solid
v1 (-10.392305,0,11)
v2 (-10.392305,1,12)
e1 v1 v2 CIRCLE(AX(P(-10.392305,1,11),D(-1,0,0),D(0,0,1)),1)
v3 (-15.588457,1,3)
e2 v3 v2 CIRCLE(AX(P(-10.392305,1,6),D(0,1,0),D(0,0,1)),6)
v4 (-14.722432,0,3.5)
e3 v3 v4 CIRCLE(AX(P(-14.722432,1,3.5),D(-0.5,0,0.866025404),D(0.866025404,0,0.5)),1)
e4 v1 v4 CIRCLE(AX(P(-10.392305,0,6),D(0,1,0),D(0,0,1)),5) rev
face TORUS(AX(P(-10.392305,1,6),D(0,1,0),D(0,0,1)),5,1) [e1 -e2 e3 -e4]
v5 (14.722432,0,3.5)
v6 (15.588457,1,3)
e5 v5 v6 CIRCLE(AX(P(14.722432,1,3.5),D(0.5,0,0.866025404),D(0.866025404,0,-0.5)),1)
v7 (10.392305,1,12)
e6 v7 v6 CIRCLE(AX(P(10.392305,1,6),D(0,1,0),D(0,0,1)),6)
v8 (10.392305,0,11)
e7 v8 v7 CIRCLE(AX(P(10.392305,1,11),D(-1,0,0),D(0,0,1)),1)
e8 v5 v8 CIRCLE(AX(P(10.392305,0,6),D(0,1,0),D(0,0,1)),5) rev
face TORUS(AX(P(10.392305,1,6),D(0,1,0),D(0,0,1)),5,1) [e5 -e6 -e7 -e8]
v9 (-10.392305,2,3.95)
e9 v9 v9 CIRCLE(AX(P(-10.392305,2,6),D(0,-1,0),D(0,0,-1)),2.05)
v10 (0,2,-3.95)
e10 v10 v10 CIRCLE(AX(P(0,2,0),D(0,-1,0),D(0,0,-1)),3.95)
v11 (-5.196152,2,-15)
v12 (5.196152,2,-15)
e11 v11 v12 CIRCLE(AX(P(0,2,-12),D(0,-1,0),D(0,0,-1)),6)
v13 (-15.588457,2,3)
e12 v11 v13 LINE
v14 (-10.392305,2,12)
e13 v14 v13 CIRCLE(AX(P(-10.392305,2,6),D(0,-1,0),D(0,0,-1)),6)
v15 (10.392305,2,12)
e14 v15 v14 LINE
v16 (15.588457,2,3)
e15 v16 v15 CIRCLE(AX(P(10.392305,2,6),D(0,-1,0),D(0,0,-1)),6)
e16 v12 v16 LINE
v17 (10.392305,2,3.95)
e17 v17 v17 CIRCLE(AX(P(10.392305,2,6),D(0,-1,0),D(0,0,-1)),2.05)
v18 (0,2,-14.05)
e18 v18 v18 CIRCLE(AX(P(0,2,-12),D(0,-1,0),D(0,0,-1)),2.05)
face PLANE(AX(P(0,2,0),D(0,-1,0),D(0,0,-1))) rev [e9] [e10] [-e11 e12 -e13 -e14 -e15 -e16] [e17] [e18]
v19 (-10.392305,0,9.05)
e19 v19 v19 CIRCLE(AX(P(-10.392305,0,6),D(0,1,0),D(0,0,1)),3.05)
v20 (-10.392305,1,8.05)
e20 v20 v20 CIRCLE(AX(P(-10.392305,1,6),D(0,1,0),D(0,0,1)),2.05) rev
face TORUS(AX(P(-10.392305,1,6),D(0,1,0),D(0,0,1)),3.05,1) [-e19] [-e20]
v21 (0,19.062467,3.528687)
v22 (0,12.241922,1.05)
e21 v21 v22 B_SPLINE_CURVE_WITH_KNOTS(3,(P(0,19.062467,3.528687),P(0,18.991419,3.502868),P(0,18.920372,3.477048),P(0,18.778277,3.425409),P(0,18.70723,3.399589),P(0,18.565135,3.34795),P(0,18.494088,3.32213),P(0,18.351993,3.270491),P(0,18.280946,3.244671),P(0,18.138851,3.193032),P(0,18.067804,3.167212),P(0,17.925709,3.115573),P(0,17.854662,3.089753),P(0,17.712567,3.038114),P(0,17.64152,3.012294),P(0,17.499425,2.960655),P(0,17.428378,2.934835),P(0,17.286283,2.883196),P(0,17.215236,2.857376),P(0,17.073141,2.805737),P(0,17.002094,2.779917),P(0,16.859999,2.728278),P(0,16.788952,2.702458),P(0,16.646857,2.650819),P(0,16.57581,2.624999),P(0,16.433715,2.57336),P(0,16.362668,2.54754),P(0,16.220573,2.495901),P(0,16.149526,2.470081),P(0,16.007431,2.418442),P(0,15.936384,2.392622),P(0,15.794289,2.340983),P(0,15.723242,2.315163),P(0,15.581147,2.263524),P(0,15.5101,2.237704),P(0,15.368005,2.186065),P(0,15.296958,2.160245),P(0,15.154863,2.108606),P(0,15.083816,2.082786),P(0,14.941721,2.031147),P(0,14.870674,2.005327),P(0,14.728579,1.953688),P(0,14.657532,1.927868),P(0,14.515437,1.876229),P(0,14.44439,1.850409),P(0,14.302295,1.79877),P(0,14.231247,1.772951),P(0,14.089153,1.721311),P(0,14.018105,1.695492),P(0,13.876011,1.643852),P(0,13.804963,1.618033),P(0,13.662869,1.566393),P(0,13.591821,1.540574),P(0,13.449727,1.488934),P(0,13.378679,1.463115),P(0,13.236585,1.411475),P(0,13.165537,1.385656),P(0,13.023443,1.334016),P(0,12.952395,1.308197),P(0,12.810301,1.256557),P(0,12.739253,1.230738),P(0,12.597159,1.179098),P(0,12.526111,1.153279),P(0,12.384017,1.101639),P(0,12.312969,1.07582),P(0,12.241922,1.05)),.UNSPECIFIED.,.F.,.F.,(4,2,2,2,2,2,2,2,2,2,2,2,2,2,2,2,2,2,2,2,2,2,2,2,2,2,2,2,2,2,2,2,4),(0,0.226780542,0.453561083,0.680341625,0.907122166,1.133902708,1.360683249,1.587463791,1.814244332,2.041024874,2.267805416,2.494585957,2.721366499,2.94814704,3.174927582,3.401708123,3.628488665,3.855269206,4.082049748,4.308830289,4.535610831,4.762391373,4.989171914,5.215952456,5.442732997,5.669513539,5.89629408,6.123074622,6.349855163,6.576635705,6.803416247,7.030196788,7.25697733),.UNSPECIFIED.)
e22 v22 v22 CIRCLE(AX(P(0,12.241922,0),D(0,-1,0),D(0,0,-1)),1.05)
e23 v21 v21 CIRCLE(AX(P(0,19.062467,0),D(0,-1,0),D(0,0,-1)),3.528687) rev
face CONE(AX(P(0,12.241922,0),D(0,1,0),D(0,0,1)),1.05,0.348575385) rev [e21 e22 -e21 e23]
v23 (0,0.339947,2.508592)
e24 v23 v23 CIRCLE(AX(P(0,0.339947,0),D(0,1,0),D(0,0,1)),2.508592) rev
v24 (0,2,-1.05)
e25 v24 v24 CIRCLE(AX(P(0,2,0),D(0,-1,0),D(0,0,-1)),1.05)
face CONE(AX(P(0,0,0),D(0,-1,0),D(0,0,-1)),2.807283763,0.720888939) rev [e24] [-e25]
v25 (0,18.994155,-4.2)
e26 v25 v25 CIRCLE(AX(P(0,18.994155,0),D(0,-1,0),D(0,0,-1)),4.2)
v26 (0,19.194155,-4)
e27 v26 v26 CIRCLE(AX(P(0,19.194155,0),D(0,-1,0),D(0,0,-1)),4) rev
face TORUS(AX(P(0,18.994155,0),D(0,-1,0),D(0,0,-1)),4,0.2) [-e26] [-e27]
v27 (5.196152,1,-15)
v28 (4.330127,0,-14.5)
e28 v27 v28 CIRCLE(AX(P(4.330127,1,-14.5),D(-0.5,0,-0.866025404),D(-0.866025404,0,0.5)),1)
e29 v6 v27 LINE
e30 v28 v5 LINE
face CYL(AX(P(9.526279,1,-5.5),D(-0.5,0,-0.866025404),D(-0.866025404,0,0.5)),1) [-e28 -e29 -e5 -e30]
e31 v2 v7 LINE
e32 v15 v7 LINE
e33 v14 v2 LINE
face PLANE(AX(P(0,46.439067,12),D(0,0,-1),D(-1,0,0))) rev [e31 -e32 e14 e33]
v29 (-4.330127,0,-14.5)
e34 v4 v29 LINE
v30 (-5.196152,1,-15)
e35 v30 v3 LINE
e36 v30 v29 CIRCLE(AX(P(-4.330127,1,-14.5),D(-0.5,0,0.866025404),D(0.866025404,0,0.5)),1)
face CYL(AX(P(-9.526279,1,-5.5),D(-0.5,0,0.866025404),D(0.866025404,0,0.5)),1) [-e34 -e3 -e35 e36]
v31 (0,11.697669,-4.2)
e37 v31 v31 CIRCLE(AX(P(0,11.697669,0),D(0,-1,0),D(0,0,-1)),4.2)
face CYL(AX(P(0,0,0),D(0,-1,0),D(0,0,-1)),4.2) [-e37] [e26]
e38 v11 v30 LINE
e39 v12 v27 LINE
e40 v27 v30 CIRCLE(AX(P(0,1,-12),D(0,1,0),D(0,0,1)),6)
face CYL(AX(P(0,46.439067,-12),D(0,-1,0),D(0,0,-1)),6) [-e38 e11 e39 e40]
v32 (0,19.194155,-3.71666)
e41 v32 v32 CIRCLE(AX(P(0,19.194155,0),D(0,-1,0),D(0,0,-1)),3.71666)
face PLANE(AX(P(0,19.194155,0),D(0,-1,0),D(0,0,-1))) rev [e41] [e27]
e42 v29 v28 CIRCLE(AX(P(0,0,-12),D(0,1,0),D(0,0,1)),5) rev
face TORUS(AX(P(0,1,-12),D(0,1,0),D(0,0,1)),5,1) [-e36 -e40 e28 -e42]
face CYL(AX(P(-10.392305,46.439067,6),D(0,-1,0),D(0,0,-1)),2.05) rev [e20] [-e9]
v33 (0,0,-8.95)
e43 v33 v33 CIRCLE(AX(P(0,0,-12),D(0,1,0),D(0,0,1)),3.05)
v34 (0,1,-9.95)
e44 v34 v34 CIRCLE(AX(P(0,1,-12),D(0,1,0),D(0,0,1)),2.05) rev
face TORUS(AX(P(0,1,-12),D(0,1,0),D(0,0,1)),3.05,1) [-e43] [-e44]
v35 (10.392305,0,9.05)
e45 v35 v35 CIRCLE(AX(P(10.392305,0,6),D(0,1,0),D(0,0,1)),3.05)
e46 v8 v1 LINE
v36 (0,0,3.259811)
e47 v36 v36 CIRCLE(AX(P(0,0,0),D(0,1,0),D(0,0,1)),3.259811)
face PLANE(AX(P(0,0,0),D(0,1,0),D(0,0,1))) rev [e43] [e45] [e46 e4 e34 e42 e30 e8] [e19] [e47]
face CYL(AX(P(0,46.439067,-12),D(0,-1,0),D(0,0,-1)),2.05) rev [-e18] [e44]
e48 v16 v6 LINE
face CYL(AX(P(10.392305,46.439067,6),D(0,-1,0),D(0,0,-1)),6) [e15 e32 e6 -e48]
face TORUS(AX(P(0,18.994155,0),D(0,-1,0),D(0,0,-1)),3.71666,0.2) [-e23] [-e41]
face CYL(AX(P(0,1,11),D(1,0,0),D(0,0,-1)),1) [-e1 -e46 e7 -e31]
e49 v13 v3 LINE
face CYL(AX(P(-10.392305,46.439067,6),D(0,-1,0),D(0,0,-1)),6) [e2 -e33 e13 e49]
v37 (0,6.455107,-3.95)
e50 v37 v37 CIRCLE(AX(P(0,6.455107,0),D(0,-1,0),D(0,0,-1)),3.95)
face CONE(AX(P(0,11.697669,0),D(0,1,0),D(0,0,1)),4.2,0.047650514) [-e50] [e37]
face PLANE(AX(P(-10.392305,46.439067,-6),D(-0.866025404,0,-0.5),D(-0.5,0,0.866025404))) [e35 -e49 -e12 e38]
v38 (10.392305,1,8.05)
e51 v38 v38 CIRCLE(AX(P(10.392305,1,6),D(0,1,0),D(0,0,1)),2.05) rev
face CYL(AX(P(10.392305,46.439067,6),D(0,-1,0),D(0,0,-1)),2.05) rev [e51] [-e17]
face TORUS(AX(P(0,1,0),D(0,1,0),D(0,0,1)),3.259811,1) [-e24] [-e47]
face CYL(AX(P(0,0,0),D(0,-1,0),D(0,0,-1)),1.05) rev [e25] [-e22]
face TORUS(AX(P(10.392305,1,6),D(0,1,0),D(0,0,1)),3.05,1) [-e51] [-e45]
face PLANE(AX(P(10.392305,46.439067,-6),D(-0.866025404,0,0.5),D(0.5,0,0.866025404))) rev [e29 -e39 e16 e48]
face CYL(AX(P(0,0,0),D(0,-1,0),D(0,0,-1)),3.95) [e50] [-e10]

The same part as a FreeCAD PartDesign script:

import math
import FreeCAD as App
import Part
import Sketcher
from FreeCAD import Vector
Q = App.Units.Quantity


def edges_at(feature, points):
    """Names of the edges that pass closest to the given points."""
    edges = feature.Shape.Edges
    near = lambda p: min(range(len(edges)), key=lambda i: edges[i].distToShape(Part.Vertex(*p))[0])
    return sorted({f"Edge{near(p) + 1}" for p in points})


def add_polygon(sketch, points):
    """Adds a closed chain of lines whose ends are joined by coincident constraints."""
    first, n = sketch.GeometryCount, len(points)
    for a, b in zip(points, points[1:] + points[:1]):
        sketch.addGeometry(Part.LineSegment(App.Vector(*a, 0), App.Vector(*b, 0)), False)
    for i in range(n):
        sketch.addConstraint(Sketcher.Constraint("Coincident", first + i, 2, first + (i + 1) % n, 1))

doc = App.newDocument("Part")
body = doc.addObject("PartDesign::Body", "Body")

sketch1 = doc.addObject("Sketcher::SketchObject", "Sketch")
body.addObject(sketch1)
sketch1.AttachmentSupport = (doc.XY_Plane, [""])
sketch1.MapMode = "FlatFace"
add_polygon(sketch1, [(-1.1, 12.2), (-3.6, 19.2), (-4.2, 19.2), (-4.2, 11.7), (-4, 6.5), (-4, 2), (-8, 2), (-8, 0), (-2.8, 0), (-1.1, 2)])
sketch1.addConstraint(Sketcher.Constraint("Horizontal", 1))
sketch1.addConstraint(Sketcher.Constraint("Vertical", 2))
sketch1.addConstraint(Sketcher.Constraint("Vertical", 4))
sketch1.addConstraint(Sketcher.Constraint("Horizontal", 5))
sketch1.addConstraint(Sketcher.Constraint("Vertical", 6))
sketch1.addConstraint(Sketcher.Constraint("Horizontal", 7))
sketch1.addConstraint(Sketcher.Constraint("Vertical", 9))
sketch1.addConstraint(Sketcher.Constraint("PointOnObject", 6, 2, -1))
sketch1.addConstraint(Sketcher.Constraint("Horizontal", 5, 2, 8, 2))
sketch1.addConstraint(Sketcher.Constraint("DistanceY", 6, 2, 6, 1, 2.0))
sketch1.addConstraint(Sketcher.Constraint("DistanceX", 5, 2, -1, 1, 8.0))
sketch1.addConstraint(Sketcher.Constraint("DistanceX", 5, 2, 5, 1, 4.05))
sketch1.addConstraint(Sketcher.Constraint("DistanceX", 1, 2, -1, 1, 4.2))
sketch1.addConstraint(Sketcher.Constraint("DistanceX", 4, 2, 8, 2, 2.9))
sketch1.addConstraint(Sketcher.Constraint("DistanceY", 9, 1, 9, 2, 10.241922))
sketch1.addConstraint(Sketcher.Constraint("Distance", 0, 7.397092))
sketch1.addConstraint(Sketcher.Constraint("Distance", 3, 5.248519))
sketch1.addConstraint(Sketcher.Constraint("Distance", 8, 2.662338))
sketch1.addConstraint(Sketcher.Constraint("DistanceX", 1, 2, 1, 1, 0.623455))
sketch1.addConstraint(Sketcher.Constraint("DistanceY", 2, 2, 2, 1, 7.496486))
revolution = doc.addObject("PartDesign::Revolution", "Revolution")
body.addObject(revolution)
revolution.Profile = sketch1
revolution.ReferenceAxis = (sketch1, ["V_Axis"])
revolution.Angle = 360

sketch2 = doc.addObject("Sketcher::SketchObject", "Sketch001")
body.addObject(sketch2)
sketch2.AttachmentSupport = (doc.XZ_Plane, [""])
sketch2.MapMode = "FlatFace"
sketch2.addGeometry(Part.ArcOfCircle(Part.Circle(Vector(-10.4, 6, 0), Vector(0, 0, 1), 6), math.radians(90), math.radians(210)), False)
sketch2.addGeometry(Part.LineSegment(Vector(-10.4, 12, 0), Vector(10.4, 12, 0)), False)
sketch2.addGeometry(Part.ArcOfCircle(Part.Circle(Vector(10.4, 6, 0), Vector(0, 0, 1), 6), math.radians(-30), math.radians(90)), False)
sketch2.addGeometry(Part.LineSegment(Vector(15.6, 3, 0), Vector(5.2, -15, 0)), False)
sketch2.addGeometry(Part.ArcOfCircle(Part.Circle(Vector(0, -12, 0), Vector(0, 0, 1), 6), math.radians(-150), math.radians(-30)), False)
sketch2.addGeometry(Part.LineSegment(Vector(-5.2, -15, 0), Vector(-15.6, 3, 0)), False)
sketch2.addGeometry(Part.Circle(Vector(-10.4, 6, 0), Vector(0, 0, 1), 2), False)
sketch2.addGeometry(Part.Circle(Vector(10.4, 6, 0), Vector(0, 0, 1), 2), False)
sketch2.addGeometry(Part.Circle(Vector(0, 0, 0), Vector(0, 0, 1), 8), False)
sketch2.addGeometry(Part.Circle(Vector(0, -12, 0), Vector(0, 0, 1), 2), False)
sketch2.addConstraint(Sketcher.Constraint("Tangent", 0, 1, 1, 1))
sketch2.addConstraint(Sketcher.Constraint("Tangent", 1, 2, 2, 2))
sketch2.addConstraint(Sketcher.Constraint("Tangent", 2, 1, 3, 1))
sketch2.addConstraint(Sketcher.Constraint("Tangent", 3, 2, 4, 2))
sketch2.addConstraint(Sketcher.Constraint("Tangent", 4, 1, 5, 1))
sketch2.addConstraint(Sketcher.Constraint("Tangent", 5, 2, 0, 2))
sketch2.addConstraint(Sketcher.Constraint("Horizontal", 1))
sketch2.addConstraint(Sketcher.Constraint("Coincident", 8, 3, -1, 1))
sketch2.addConstraint(Sketcher.Constraint("Coincident", 6, 3, 0, 3))
sketch2.addConstraint(Sketcher.Constraint("Coincident", 7, 3, 2, 3))
sketch2.addConstraint(Sketcher.Constraint("Coincident", 9, 3, 4, 3))
sketch2.addConstraint(Sketcher.Constraint("Equal", 0, 2))
sketch2.addConstraint(Sketcher.Constraint("Equal", 2, 4))
sketch2.addConstraint(Sketcher.Constraint("Equal", 6, 7))
sketch2.addConstraint(Sketcher.Constraint("Equal", 7, 9))
sketch2.addConstraint(Sketcher.Constraint("Symmetric", 3, 2, 4, 1, -2))
sketch2.addConstraint(Sketcher.Constraint("Diameter", 8, 16.0))
sketch2.addConstraint(Sketcher.Constraint("Radius", 0, 6.0))
sketch2.addConstraint(Sketcher.Constraint("Diameter", 6, 4.1))
sketch2.addConstraint(Sketcher.Constraint("Angle", 3, Q("-120 deg")))
sketch2.addConstraint(Sketcher.Constraint("DistanceY", -1, 1, 0, 3, 6.0))
sketch2.addConstraint(Sketcher.Constraint("DistanceY", 4, 3, -1, 1, 12.0))
pad1 = doc.addObject("PartDesign::Pad", "Pad")
body.addObject(pad1)
pad1.Profile = sketch2
pad1.Length = 2
pad1.Reversed = True
doc.recompute()

fillet = doc.addObject("PartDesign::Fillet", "Fillet")
body.addObject(fillet)
fillet.Base = (pad1, edges_at(pad1, [(0, 19.194, 4.2), (0, 19.194, 3.577)]))
fillet.Radius = 0.2
doc.recompute()

fillet2 = doc.addObject("PartDesign::Fillet", "Fillet001")
body.addObject(fillet2)
fillet2.Base = (fillet, edges_at(fillet, [
    (-15.588, 0, 9),
    (0, 0, 12),
    (15.588, 0, 9),
    (10.392, 0, -6),
    (0, 0, -18),
    (-10.392, 0, -6),
    (0, 0, -9.95),
    (10.392, 0, 8.05),
    (-10.392, 0, 8.05),
    (0, 0, 2.807),
]))
fillet2.Radius = 1

doc.recompute()
